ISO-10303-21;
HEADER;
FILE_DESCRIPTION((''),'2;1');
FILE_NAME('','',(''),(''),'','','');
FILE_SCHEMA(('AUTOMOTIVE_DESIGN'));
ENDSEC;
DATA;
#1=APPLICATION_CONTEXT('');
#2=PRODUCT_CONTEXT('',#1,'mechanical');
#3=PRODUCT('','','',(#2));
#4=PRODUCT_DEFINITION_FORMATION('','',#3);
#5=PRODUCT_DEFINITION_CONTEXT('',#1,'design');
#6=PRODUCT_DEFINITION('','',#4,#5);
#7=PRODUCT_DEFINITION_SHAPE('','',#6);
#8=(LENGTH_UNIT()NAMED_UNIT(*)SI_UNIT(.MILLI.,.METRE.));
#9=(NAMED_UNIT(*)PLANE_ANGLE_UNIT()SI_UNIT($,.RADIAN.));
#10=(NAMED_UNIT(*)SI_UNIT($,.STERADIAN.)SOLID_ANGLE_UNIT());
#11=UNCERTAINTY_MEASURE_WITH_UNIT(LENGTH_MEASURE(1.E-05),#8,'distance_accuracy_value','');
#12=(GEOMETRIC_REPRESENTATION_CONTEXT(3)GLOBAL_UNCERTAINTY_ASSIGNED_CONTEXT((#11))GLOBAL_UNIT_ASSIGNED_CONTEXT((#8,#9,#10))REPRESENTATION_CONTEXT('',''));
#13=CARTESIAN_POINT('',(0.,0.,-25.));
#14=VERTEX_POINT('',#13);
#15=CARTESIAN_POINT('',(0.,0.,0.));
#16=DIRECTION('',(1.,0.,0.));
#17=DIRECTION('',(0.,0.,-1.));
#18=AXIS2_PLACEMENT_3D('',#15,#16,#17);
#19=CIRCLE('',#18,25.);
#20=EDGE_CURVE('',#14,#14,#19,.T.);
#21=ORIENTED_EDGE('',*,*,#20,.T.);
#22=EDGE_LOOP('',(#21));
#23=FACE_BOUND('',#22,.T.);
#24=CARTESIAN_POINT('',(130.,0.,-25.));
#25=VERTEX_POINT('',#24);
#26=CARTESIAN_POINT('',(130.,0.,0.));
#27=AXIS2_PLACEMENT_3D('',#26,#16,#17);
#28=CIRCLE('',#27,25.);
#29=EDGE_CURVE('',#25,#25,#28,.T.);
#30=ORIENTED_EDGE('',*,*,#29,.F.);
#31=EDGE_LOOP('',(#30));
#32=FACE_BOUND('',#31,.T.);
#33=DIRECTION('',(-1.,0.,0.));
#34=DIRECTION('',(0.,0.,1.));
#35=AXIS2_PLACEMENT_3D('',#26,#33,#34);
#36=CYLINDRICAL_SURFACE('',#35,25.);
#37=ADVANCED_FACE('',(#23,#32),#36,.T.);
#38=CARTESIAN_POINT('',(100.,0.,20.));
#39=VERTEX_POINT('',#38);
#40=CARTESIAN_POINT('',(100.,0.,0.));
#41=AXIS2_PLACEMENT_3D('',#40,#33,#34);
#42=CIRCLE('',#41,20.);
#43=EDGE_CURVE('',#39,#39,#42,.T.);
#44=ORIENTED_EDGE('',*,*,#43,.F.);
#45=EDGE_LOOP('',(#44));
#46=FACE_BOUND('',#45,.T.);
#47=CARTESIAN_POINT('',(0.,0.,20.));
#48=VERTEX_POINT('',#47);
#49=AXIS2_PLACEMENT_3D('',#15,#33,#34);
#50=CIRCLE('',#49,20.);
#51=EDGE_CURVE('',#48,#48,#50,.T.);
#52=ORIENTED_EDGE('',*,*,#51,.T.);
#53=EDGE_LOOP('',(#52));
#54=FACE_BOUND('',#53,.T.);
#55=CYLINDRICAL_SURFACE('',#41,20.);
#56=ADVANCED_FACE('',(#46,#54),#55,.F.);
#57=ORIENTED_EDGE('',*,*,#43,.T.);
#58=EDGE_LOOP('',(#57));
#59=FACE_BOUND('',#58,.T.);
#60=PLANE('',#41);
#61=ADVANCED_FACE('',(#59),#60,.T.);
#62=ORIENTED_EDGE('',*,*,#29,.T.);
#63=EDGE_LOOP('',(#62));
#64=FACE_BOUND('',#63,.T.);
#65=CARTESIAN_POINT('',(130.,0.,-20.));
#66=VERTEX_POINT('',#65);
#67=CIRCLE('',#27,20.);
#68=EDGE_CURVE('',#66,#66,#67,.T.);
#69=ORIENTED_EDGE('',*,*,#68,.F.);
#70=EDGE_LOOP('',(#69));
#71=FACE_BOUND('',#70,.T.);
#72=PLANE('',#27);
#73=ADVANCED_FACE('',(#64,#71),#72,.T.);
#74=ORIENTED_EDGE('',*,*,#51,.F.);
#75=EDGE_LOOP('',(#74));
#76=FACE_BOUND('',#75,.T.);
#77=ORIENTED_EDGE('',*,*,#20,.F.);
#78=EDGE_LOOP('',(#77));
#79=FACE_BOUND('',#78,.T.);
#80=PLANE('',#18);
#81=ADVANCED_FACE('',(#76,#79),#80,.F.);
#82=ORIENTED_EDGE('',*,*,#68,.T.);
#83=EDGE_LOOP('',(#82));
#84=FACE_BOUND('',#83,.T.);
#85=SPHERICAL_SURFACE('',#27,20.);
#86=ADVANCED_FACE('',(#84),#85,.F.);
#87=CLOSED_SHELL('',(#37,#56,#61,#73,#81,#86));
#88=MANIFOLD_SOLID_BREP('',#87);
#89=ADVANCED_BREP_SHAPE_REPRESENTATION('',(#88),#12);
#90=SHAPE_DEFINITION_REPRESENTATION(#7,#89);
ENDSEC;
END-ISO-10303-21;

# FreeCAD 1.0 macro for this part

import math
import FreeCAD as App
import Part
import Sketcher
from FreeCAD import Vector

doc = App.newDocument("Part")
body = doc.addObject("PartDesign::Body", "Body")

# Sketch on YZ plane
sketch1 = body.newObject("Sketcher::SketchObject", "Sketch")
sketch1.AttachmentSupport = (doc.getObject("YZ_Plane"), [""])
sketch1.MapMode = "FlatFace"
sketch1.addGeometry(Part.Circle(Vector(0, 0, 0), Vector(0, 0, 1), 25), False)
sketch1.addConstraint(Sketcher.Constraint("Coincident", 0, 3, -1, 1))
sketch1.addConstraint(Sketcher.Constraint("Diameter", 0, 50.0))
pad1 = body.newObject("PartDesign::Pad", "Pad")
pad1.Profile = sketch1
pad1.Length = 130

# Sketch on YZ plane
sketch2 = body.newObject("Sketcher::SketchObject", "Sketch001")
sketch2.AttachmentSupport = (doc.getObject("YZ_Plane"), [""])
sketch2.MapMode = "FlatFace"
sketch2.AttachmentOffset = App.Placement(Vector(0, 0, 130), App.Rotation())
sketch2.addGeometry(Part.LineSegment(Vector(0, 20, 0), Vector(0, -20, 0)), False)
sketch2.addGeometry(Part.ArcOfCircle(Part.Circle(Vector(0, 0, 0), Vector(0, 0, 1), 20), math.radians(-90), math.radians(90)), False)
sketch2.addConstraint(Sketcher.Constraint("Coincident", 0, 1, 1, 2))
sketch2.addConstraint(Sketcher.Constraint("Coincident", 1, 1, 0, 2))
sketch2.addConstraint(Sketcher.Constraint("Vertical", 0))
sketch2.addConstraint(Sketcher.Constraint("Coincident", 1, 3, -1, 1))
sketch2.addConstraint(Sketcher.Constraint("PointOnObject", 0, 1, -2))
sketch2.addConstraint(Sketcher.Constraint("Radius", 1, 20.0))
groove = body.newObject("PartDesign::Groove", "Groove")
groove.Profile = sketch2
groove.ReferenceAxis = (sketch2, ["V_Axis"])
groove.Angle = 360

# Sketch on YZ plane
sketch3 = body.newObject("Sketcher::SketchObject", "Sketch002")
sketch3.AttachmentSupport = (doc.getObject("YZ_Plane"), [""])
sketch3.MapMode = "FlatFace"
sketch3.addGeometry(Part.Circle(Vector(0, 0, 0), Vector(0, 0, 1), 20), False)
sketch3.addConstraint(Sketcher.Constraint("Coincident", 0, 3, -1, 1))
sketch3.addConstraint(Sketcher.Constraint("Diameter", 0, 40.0))
pocket1 = body.newObject("PartDesign::Pocket", "Pocket")
pocket1.Profile = sketch3
pocket1.Length = 100
pocket1.Reversed = True

doc.recompute()
